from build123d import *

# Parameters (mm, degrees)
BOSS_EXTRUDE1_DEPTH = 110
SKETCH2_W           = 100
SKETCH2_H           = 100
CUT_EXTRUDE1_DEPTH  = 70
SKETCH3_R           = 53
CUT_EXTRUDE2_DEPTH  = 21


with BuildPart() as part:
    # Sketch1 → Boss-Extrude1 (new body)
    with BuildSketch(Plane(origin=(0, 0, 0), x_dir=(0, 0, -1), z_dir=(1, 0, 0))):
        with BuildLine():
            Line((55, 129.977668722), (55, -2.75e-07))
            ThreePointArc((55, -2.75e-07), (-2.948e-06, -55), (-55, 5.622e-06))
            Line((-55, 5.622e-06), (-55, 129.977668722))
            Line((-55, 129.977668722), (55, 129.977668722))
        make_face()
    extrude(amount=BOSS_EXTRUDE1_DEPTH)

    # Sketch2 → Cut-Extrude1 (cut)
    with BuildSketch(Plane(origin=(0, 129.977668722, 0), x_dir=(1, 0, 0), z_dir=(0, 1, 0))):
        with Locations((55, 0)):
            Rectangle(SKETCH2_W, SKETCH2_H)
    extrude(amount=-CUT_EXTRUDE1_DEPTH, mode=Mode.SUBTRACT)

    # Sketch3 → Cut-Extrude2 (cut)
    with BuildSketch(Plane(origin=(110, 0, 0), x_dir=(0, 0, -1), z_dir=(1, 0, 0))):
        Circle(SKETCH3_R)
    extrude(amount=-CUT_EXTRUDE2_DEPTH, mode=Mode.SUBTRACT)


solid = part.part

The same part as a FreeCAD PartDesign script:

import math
import FreeCAD as App
import Part
import Sketcher
from FreeCAD import Vector


def add_polygon(sketch, points):
    """Adds a closed chain of lines whose ends are joined by coincident constraints."""
    first, n = sketch.GeometryCount, len(points)
    for a, b in zip(points, points[1:] + points[:1]):
        sketch.addGeometry(Part.LineSegment(App.Vector(*a, 0), App.Vector(*b, 0)), False)
    for i in range(n):
        sketch.addConstraint(Sketcher.Constraint("Coincident", first + i, 2, first + (i + 1) % n, 1))

doc = App.newDocument("Part")
body = doc.addObject("PartDesign::Body", "Body")

# Sketch on YZ plane
sketch1 = body.newObject("Sketcher::SketchObject", "Sketch")
sketch1.AttachmentSupport = (doc.getObject("YZ_Plane"), [""])
sketch1.MapMode = "FlatFace"
sketch1.addGeometry(Part.LineSegment(Vector(0, -55, 0), Vector(130, -55, 0)), False)
sketch1.addGeometry(Part.LineSegment(Vector(130, -55, 0), Vector(130, 55, 0)), False)
sketch1.addGeometry(Part.LineSegment(Vector(130, 55, 0), Vector(0, 55, 0)), False)
sketch1.addGeometry(Part.ArcOfCircle(Part.Circle(Vector(0, 0, 0), Vector(0, 0, 1), 55), math.radians(90), math.radians(270)), False)
sketch1.addConstraint(Sketcher.Constraint("Coincident", 0, 2, 1, 1))
sketch1.addConstraint(Sketcher.Constraint("Coincident", 1, 2, 2, 1))
sketch1.addConstraint(Sketcher.Constraint("Tangent", 2, 2, 3, 1))
sketch1.addConstraint(Sketcher.Constraint("Tangent", 3, 2, 0, 1))
sketch1.addConstraint(Sketcher.Constraint("Horizontal", 0))
sketch1.addConstraint(Sketcher.Constraint("Vertical", 1))
sketch1.addConstraint(Sketcher.Constraint("Horizontal", 2))
sketch1.addConstraint(Sketcher.Constraint("Coincident", 3, 3, -1, 1))
sketch1.addConstraint(Sketcher.Constraint("Radius", 3, 55.0))
sketch1.addConstraint(Sketcher.Constraint("DistanceX", 0, 1, 0, 2, 129.977669))
pad1 = body.newObject("PartDesign::Pad", "Pad")
pad1.Profile = sketch1
pad1.Length = 110

# Sketch on XZ plane
sketch2 = body.newObject("Sketcher::SketchObject", "Sketch001")
sketch2.AttachmentSupport = (doc.getObject("XZ_Plane"), [""])
sketch2.MapMode = "FlatFace"
sketch2.AttachmentOffset = App.Placement(Vector(0, 0, -129.977669), App.Rotation())
add_polygon(sketch2, [(5, -50), (5, 50), (105, 50), (105, -50)])  # lines 0-3
sketch2.addConstraint(Sketcher.Constraint("Vertical", 0))
sketch2.addConstraint(Sketcher.Constraint("Horizontal", 1))
sketch2.addConstraint(Sketcher.Constraint("Vertical", 2))
sketch2.addConstraint(Sketcher.Constraint("Horizontal", 3))
sketch2.addConstraint(Sketcher.Constraint("Equal", 3, 0))
sketch2.addConstraint(Sketcher.Constraint("DistanceX", 1, 1, 1, 2, 100.0))
sketch2.addConstraint(Sketcher.Constraint("DistanceX", -1, 1, 0, 2, 5.0))
sketch2.addConstraint(Sketcher.Constraint("DistanceY", -1, 1, 0, 2, 50.0))
pocket1 = body.newObject("PartDesign::Pocket", "Pocket")
pocket1.Profile = sketch2
pocket1.Length = 70
pocket1.Reversed = True

# Sketch on YZ plane
sketch3 = body.newObject("Sketcher::SketchObject", "Sketch002")
sketch3.AttachmentSupport = (doc.getObject("YZ_Plane"), [""])
sketch3.MapMode = "FlatFace"
sketch3.AttachmentOffset = App.Placement(Vector(0, 0, 110), App.Rotation())
sketch3.addGeometry(Part.Circle(Vector(0, 0, 0), Vector(0, 0, 1), 53), False)
sketch3.addConstraint(Sketcher.Constraint("Coincident", 0, 3, -1, 1))
sketch3.addConstraint(Sketcher.Constraint("Diameter", 0, 106.0))
pocket2 = body.newObject("PartDesign::Pocket", "Pocket001")
pocket2.Profile = sketch3
pocket2.Length = 21

doc.recompute()
